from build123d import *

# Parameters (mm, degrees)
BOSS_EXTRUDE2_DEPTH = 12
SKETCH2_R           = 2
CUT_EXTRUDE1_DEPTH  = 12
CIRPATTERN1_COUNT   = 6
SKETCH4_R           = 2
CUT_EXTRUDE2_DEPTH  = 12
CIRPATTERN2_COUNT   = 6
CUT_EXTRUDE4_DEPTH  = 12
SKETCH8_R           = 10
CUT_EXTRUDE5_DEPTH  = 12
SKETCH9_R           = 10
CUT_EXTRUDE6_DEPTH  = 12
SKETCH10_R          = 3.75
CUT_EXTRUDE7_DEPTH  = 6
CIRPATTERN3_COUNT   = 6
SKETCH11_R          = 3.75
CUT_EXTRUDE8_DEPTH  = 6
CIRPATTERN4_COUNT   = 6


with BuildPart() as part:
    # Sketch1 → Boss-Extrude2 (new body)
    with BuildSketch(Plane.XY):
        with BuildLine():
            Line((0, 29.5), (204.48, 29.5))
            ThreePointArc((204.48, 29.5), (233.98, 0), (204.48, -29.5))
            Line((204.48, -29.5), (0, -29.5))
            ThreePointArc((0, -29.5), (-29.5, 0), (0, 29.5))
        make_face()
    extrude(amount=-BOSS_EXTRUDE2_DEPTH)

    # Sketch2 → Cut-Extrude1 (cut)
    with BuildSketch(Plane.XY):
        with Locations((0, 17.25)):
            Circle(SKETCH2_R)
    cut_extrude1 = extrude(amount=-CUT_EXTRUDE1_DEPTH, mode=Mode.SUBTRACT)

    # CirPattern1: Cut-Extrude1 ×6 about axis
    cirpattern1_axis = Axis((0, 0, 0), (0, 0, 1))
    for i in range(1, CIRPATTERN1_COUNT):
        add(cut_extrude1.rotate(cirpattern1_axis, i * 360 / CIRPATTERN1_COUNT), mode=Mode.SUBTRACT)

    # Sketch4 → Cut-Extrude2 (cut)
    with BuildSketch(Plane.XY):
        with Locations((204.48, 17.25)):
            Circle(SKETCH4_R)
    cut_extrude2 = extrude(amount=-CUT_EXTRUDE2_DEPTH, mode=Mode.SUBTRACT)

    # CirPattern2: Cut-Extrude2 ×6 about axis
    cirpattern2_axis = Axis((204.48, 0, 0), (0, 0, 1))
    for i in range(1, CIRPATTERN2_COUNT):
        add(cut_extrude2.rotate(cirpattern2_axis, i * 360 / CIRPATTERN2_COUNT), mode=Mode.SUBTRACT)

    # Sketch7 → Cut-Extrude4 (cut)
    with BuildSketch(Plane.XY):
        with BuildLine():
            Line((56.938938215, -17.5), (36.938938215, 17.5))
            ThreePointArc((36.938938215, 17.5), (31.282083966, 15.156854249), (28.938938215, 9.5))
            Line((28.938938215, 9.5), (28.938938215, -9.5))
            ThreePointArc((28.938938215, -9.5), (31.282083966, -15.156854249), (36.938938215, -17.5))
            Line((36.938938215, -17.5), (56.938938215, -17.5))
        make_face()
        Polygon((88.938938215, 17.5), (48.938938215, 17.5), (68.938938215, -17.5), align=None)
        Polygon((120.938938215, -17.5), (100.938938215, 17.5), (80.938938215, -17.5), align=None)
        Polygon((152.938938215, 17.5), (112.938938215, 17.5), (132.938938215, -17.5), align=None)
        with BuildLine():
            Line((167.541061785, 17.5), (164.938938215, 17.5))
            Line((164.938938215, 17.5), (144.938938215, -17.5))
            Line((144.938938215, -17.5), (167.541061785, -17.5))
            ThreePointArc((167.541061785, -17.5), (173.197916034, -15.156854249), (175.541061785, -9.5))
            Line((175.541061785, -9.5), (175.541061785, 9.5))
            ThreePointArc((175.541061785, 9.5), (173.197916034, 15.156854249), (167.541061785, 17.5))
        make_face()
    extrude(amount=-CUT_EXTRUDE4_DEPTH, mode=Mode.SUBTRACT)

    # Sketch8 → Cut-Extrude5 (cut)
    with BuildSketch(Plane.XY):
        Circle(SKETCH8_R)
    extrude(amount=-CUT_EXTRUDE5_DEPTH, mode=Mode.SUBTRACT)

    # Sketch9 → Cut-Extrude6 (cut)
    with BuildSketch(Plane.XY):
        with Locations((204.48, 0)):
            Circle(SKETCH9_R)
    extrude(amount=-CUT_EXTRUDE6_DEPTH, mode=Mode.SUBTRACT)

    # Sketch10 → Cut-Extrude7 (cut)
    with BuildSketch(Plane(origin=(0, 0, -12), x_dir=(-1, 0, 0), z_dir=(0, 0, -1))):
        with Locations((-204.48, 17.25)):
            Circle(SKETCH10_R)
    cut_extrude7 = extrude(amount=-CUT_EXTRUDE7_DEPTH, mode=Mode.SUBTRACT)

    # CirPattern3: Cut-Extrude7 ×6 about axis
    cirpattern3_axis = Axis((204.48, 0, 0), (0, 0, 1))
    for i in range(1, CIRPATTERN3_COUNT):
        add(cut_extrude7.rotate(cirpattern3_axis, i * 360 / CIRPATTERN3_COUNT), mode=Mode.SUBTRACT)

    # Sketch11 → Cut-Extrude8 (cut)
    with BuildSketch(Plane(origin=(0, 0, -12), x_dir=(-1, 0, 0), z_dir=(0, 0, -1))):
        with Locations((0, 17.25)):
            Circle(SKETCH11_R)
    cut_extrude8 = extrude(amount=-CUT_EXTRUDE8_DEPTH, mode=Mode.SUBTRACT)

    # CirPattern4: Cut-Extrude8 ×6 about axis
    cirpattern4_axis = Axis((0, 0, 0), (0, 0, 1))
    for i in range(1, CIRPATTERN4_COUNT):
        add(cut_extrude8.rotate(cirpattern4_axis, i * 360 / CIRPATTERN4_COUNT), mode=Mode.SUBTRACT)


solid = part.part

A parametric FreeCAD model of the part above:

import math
import FreeCAD as App
import Part
import Sketcher
from FreeCAD import Vector
Q = App.Units.Quantity


def add_polygon(sketch, points):
    """Adds a closed chain of lines whose ends are joined by coincident constraints."""
    first, n = sketch.GeometryCount, len(points)
    for a, b in zip(points, points[1:] + points[:1]):
        sketch.addGeometry(Part.LineSegment(App.Vector(*a, 0), App.Vector(*b, 0)), False)
    for i in range(n):
        sketch.addConstraint(Sketcher.Constraint("Coincident", first + i, 2, first + (i + 1) % n, 1))

doc = App.newDocument("Part")
body = doc.addObject("PartDesign::Body", "Body")

# Sketch on XY plane
sketch1 = body.newObject("Sketcher::SketchObject", "Sketch")
sketch1.AttachmentSupport = (doc.getObject("XY_Plane"), [""])
sketch1.MapMode = "FlatFace"
sketch1.addGeometry(Part.LineSegment(Vector(204, 30, 0), Vector(0, 30, 0)), False)
sketch1.addGeometry(Part.ArcOfCircle(Part.Circle(Vector(0, 0, 0), Vector(0, 0, 1), 30), math.radians(90), math.radians(270)), False)
sketch1.addGeometry(Part.LineSegment(Vector(0, -30, 0), Vector(204, -30, 0)), False)
sketch1.addGeometry(Part.ArcOfCircle(Part.Circle(Vector(204, 0, 0), Vector(0, 0, 1), 30), math.radians(-90), math.radians(90)), False)
sketch1.addConstraint(Sketcher.Constraint("Tangent", 0, 2, 1, 1))
sketch1.addConstraint(Sketcher.Constraint("Tangent", 1, 2, 2, 1))
sketch1.addConstraint(Sketcher.Constraint("Tangent", 2, 2, 3, 1))
sketch1.addConstraint(Sketcher.Constraint("Tangent", 3, 2, 0, 1))
sketch1.addConstraint(Sketcher.Constraint("Horizontal", 0))
sketch1.addConstraint(Sketcher.Constraint("Horizontal", 2))
sketch1.addConstraint(Sketcher.Constraint("Coincident", 1, 3, -1, 1))
sketch1.addConstraint(Sketcher.Constraint("Radius", 1, Q("29.5 mm")))
sketch1.addConstraint(Sketcher.Constraint("DistanceX", 0, 2, 0, 1, Q("204.48 mm")))
pad1 = body.newObject("PartDesign::Pad", "Pad")
pad1.Profile = sketch1
pad1.Length = 12
pad1.Reversed = True

# Sketch on XY plane
sketch2 = body.newObject("Sketcher::SketchObject", "Sketch001")
sketch2.AttachmentSupport = (doc.getObject("XY_Plane"), [""])
sketch2.MapMode = "FlatFace"
sketch2.addGeometry(Part.Circle(Vector(0, 17.2, 0), Vector(0, 0, 1), 2), False)
sketch2.addConstraint(Sketcher.Constraint("PointOnObject", 0, 3, -2))
sketch2.addConstraint(Sketcher.Constraint("Diameter", 0, Q("4 mm")))
sketch2.addConstraint(Sketcher.Constraint("DistanceY", -1, 1, 0, 3, Q("17.25 mm")))
pocket1 = body.newObject("PartDesign::Pocket", "Pocket")
pocket1.Profile = sketch2
pocket1.Length = 12
doc.recompute()

polarpattern = body.newObject("PartDesign::PolarPattern", "PolarPattern")
polarpattern.Originals = [pocket1]
polarpattern.Axis = (doc.getObject("Z_Axis"), [""])
polarpattern.Angle = 360
polarpattern.Occurrences = 6
body.Tip = polarpattern

# Sketch on XY plane
sketch3 = body.newObject("Sketcher::SketchObject", "Sketch002")
sketch3.AttachmentSupport = (doc.getObject("XY_Plane"), [""])
sketch3.MapMode = "FlatFace"
sketch3.addGeometry(Part.Circle(Vector(204.5, 17.2, 0), Vector(0, 0, 1), 2), False)
sketch3.addConstraint(Sketcher.Constraint("Diameter", 0, Q("4 mm")))
sketch3.addConstraint(Sketcher.Constraint("DistanceX", -1, 1, 0, 3, Q("204.48 mm")))
sketch3.addConstraint(Sketcher.Constraint("DistanceY", -1, 1, 0, 3, Q("17.25 mm")))
pocket2 = body.newObject("PartDesign::Pocket", "Pocket001")
pocket2.Profile = sketch3
pocket2.Length = 12
doc.recompute()

datumline = body.newObject("PartDesign::Line", "DatumLine")
datumline.Placement = App.Placement(Vector(204.48, 0, 0), App.Rotation(Vector(0, 0, 1), Vector(0, 0, 1)))
polarpattern2 = body.newObject("PartDesign::PolarPattern", "PolarPattern001")
polarpattern2.Originals = [pocket2]
polarpattern2.Axis = (datumline, [""])
polarpattern2.Angle = 360
polarpattern2.Occurrences = 6
body.Tip = polarpattern2

# Sketch on XY plane
sketch4 = body.newObject("Sketcher::SketchObject", "Sketch003")
sketch4.AttachmentSupport = (doc.getObject("XY_Plane"), [""])
sketch4.MapMode = "FlatFace"
sketch4.addGeometry(Part.LineSegment(Vector(56.9, -17.5, 0), Vector(36.9, 17.5, 0)), False)  # 0
sketch4.addGeometry(Part.ArcOfCircle(Part.Circle(Vector(36.9, 9.5, 0), Vector(0, 0, 1), 8), math.radians(90), math.radians(180)), False)  # 1
sketch4.addGeometry(Part.LineSegment(Vector(28.9, 9.5, 0), Vector(28.9, -9.5, 0)), False)  # 2
sketch4.addGeometry(Part.ArcOfCircle(Part.Circle(Vector(36.9, -9.5, 0), Vector(0, 0, 1), 8), math.radians(-180), math.radians(-90)), False)  # 3
sketch4.addGeometry(Part.LineSegment(Vector(36.9, -17.5, 0), Vector(56.9, -17.5, 0)), False)  # 4
add_polygon(sketch4, [(88.9, 17.5), (48.9, 17.5), (68.9, -17.5)])  # lines 5-7
add_polygon(sketch4, [(120.9, -17.5), (100.9, 17.5), (80.9, -17.5)])  # lines 8-10
add_polygon(sketch4, [(152.9, 17.5), (112.9, 17.5), (132.9, -17.5)])  # lines 11-13
sketch4.addGeometry(Part.LineSegment(Vector(167.5, 17.5, 0), Vector(164.9, 17.5, 0)), False)  # 14
sketch4.addGeometry(Part.LineSegment(Vector(164.9, 17.5, 0), Vector(144.9, -17.5, 0)), False)  # 15
sketch4.addGeometry(Part.LineSegment(Vector(144.9, -17.5, 0), Vector(167.5, -17.5, 0)), False)  # 16
sketch4.addGeometry(Part.ArcOfCircle(Part.Circle(Vector(167.5, -9.5, 0), Vector(0, 0, 1), 8), math.radians(-90), math.radians(0)), False)  # 17
sketch4.addGeometry(Part.LineSegment(Vector(175.5, -9.5, 0), Vector(175.5, 9.5, 0)), False)  # 18
sketch4.addGeometry(Part.ArcOfCircle(Part.Circle(Vector(167.5, 9.5, 0), Vector(0, 0, 1), 8), math.radians(0), math.radians(90)), False)  # 19
sketch4.addConstraint(Sketcher.Constraint("Coincident", 0, 2, 1, 1))
sketch4.addConstraint(Sketcher.Constraint("Tangent", 1, 2, 2, 1))
sketch4.addConstraint(Sketcher.Constraint("Tangent", 2, 2, 3, 1))
sketch4.addConstraint(Sketcher.Constraint("Tangent", 3, 2, 4, 1))
sketch4.addConstraint(Sketcher.Constraint("Coincident", 4, 2, 0, 1))
sketch4.addConstraint(Sketcher.Constraint("Coincident", 14, 2, 15, 1))
sketch4.addConstraint(Sketcher.Constraint("Coincident", 15, 2, 16, 1))
sketch4.addConstraint(Sketcher.Constraint("Tangent", 16, 2, 17, 1))
sketch4.addConstraint(Sketcher.Constraint("Tangent", 17, 2, 18, 1))
sketch4.addConstraint(Sketcher.Constraint("Tangent", 18, 2, 19, 1))
sketch4.addConstraint(Sketcher.Constraint("Tangent", 19, 2, 14, 1))
sketch4.addConstraint(Sketcher.Constraint("Vertical", 2))
sketch4.addConstraint(Sketcher.Constraint("Horizontal", 4))
sketch4.addConstraint(Sketcher.Constraint("Horizontal", 5))
sketch4.addConstraint(Sketcher.Constraint("Horizontal", 10))
sketch4.addConstraint(Sketcher.Constraint("Horizontal", 11))
sketch4.addConstraint(Sketcher.Constraint("Horizontal", 14))
sketch4.addConstraint(Sketcher.Constraint("Horizontal", 16))
sketch4.addConstraint(Sketcher.Constraint("Vertical", 18))
sketch4.addConstraint(Sketcher.Constraint("Equal", 1, 3))
sketch4.addConstraint(Sketcher.Constraint("Equal", 3, 17))
sketch4.addConstraint(Sketcher.Constraint("Equal", 17, 19))
sketch4.addConstraint(Sketcher.Constraint("Symmetric", 0, 2, 3, 2, -1))
sketch4.addConstraint(Sketcher.Constraint("Parallel", 0, 6))
sketch4.addConstraint(Sketcher.Constraint("Parallel", 6, 8))
sketch4.addConstraint(Sketcher.Constraint("Parallel", 7, 9))
sketch4.addConstraint(Sketcher.Constraint("Parallel", 8, 12))
sketch4.addConstraint(Sketcher.Constraint("Parallel", 9, 13))
sketch4.addConstraint(Sketcher.Constraint("Parallel", 13, 15))
sketch4.addConstraint(Sketcher.Constraint("Horizontal", 3, 3, 17, 3))
sketch4.addConstraint(Sketcher.Constraint("Horizontal", 1, 3, 19, 3))
sketch4.addConstraint(Sketcher.Constraint("Horizontal", 0, 2, 5, 2))
sketch4.addConstraint(Sketcher.Constraint("Horizontal", 4, 2, 6, 2))
sketch4.addConstraint(Sketcher.Constraint("Horizontal", 7, 2, 8, 2))
sketch4.addConstraint(Sketcher.Constraint("Horizontal", 6, 2, 9, 2))
sketch4.addConstraint(Sketcher.Constraint("Horizontal", 8, 2, 11, 2))
sketch4.addConstraint(Sketcher.Constraint("Horizontal", 10, 2, 12, 2))
sketch4.addConstraint(Sketcher.Constraint("Equal", 6, 7))
sketch4.addConstraint(Sketcher.Constraint("Radius", 1, Q("8 mm")))
sketch4.addConstraint(Sketcher.Constraint("DistanceX", 4, 1, 4, 2, Q("20 mm")))
sketch4.addConstraint(Sketcher.Constraint("DistanceY", 2, 2, 2, 1, Q("19 mm")))
sketch4.addConstraint(Sketcher.Constraint("DistanceX", 0, 2, 5, 2, Q("12 mm")))
sketch4.addConstraint(Sketcher.Constraint("DistanceX", 7, 2, 8, 2, Q("12 mm")))
sketch4.addConstraint(Sketcher.Constraint("DistanceX", 8, 2, 11, 2, Q("12 mm")))
sketch4.addConstraint(Sketcher.Constraint("DistanceX", 13, 2, 14, 2, Q("12 mm")))
sketch4.addConstraint(Sketcher.Constraint("DistanceX", 14, 2, 14, 1, Q("2.602124 mm")))
sketch4.addConstraint(Sketcher.Constraint("DistanceX", -1, 1, 1, 3, Q("36.938938 mm")))
pocket3 = body.newObject("PartDesign::Pocket", "Pocket002")
pocket3.Profile = sketch4
pocket3.Length = 12

# Sketch on XY plane
sketch5 = body.newObject("Sketcher::SketchObject", "Sketch004")
sketch5.AttachmentSupport = (doc.getObject("XY_Plane"), [""])
sketch5.MapMode = "FlatFace"
sketch5.addGeometry(Part.Circle(Vector(0, 0, 0), Vector(0, 0, 1), 10), False)
sketch5.addConstraint(Sketcher.Constraint("Coincident", 0, 3, -1, 1))
sketch5.addConstraint(Sketcher.Constraint("Diameter", 0, Q("20 mm")))
pocket4 = body.newObject("PartDesign::Pocket", "Pocket003")
pocket4.Profile = sketch5
pocket4.Length = 12

# Sketch on XY plane
sketch6 = body.newObject("Sketcher::SketchObject", "Sketch005")
sketch6.AttachmentSupport = (doc.getObject("XY_Plane"), [""])
sketch6.MapMode = "FlatFace"
sketch6.addGeometry(Part.Circle(Vector(204, 0, 0), Vector(0, 0, 1), 10), False)
sketch6.addConstraint(Sketcher.Constraint("PointOnObject", 0, 3, -1))
sketch6.addConstraint(Sketcher.Constraint("Diameter", 0, Q("20 mm")))
sketch6.addConstraint(Sketcher.Constraint("DistanceX", -1, 1, 0, 3, Q("204.48 mm")))
pocket5 = body.newObject("PartDesign::Pocket", "Pocket004")
pocket5.Profile = sketch6
pocket5.Length = 12

# Sketch on XY plane
sketch7 = body.newObject("Sketcher::SketchObject", "Sketch006")
sketch7.AttachmentSupport = (doc.getObject("XY_Plane"), [""])
sketch7.MapMode = "FlatFace"
sketch7.AttachmentOffset = App.Placement(Vector(0, 0, -12), App.Rotation())
sketch7.addGeometry(Part.Circle(Vector(204.5, 17.2, 0), Vector(0, 0, 1), 3.8), False)
sketch7.addConstraint(Sketcher.Constraint("Diameter", 0, Q("7.5 mm")))
sketch7.addConstraint(Sketcher.Constraint("DistanceX", -1, 1, 0, 3, Q("204.48 mm")))
sketch7.addConstraint(Sketcher.Constraint("DistanceY", -1, 1, 0, 3, Q("17.25 mm")))
pocket6 = body.newObject("PartDesign::Pocket", "Pocket005")
pocket6.Profile = sketch7
pocket6.Length = 6
pocket6.Reversed = True
doc.recompute()

datumline2 = body.newObject("PartDesign::Line", "DatumLine001")
datumline2.Placement = App.Placement(Vector(204.48, 0, 0), App.Rotation(Vector(0, 0, 1), Vector(0, 0, 1)))
polarpattern3 = body.newObject("PartDesign::PolarPattern", "PolarPattern002")
polarpattern3.Originals = [pocket6]
polarpattern3.Axis = (datumline2, [""])
polarpattern3.Angle = 360
polarpattern3.Occurrences = 6
body.Tip = polarpattern3

# Sketch on XY plane
sketch8 = body.newObject("Sketcher::SketchObject", "Sketch007")
sketch8.AttachmentSupport = (doc.getObject("XY_Plane"), [""])
sketch8.MapMode = "FlatFace"
sketch8.AttachmentOffset = App.Placement(Vector(0, 0, -12), App.Rotation())
sketch8.addGeometry(Part.Circle(Vector(0, 17.2, 0), Vector(0, 0, 1), 3.8), False)
sketch8.addConstraint(Sketcher.Constraint("PointOnObject", 0, 3, -2))
sketch8.addConstraint(Sketcher.Constraint("Diameter", 0, Q("7.5 mm")))
sketch8.addConstraint(Sketcher.Constraint("DistanceY", -1, 1, 0, 3, Q("17.25 mm")))
pocket7 = body.newObject("PartDesign::Pocket", "Pocket006")
pocket7.Profile = sketch8
pocket7.Length = 6
pocket7.Reversed = True
doc.recompute()

polarpattern4 = body.newObject("PartDesign::PolarPattern", "PolarPattern003")
polarpattern4.Originals = [pocket7]
polarpattern4.Axis = (doc.getObject("Z_Axis"), [""])
polarpattern4.Angle = 360
polarpattern4.Occurrences = 6
body.Tip = polarpattern4

doc.recompute()
